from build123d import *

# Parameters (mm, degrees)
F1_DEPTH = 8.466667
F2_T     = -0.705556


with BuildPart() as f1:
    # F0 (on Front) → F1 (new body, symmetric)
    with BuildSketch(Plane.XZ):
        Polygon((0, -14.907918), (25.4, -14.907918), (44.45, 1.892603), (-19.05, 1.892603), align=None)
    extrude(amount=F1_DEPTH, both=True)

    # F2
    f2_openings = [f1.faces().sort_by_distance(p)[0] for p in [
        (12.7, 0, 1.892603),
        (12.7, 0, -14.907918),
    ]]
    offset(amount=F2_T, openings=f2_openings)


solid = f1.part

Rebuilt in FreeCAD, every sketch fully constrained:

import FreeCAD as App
import Part
import Sketcher
from FreeCAD import Vector
Q = App.Units.Quantity


def faces_at(feature, points):
    """Names of the faces that lie closest to the given points."""
    faces = feature.Shape.Faces
    near = lambda p: min(range(len(faces)), key=lambda i: faces[i].distToShape(Part.Vertex(*p))[0])
    return sorted({f"Face{near(p) + 1}" for p in points})


def add_polygon(sketch, points):
    """Adds a closed chain of lines whose ends are joined by coincident constraints."""
    first, n = sketch.GeometryCount, len(points)
    for a, b in zip(points, points[1:] + points[:1]):
        sketch.addGeometry(Part.LineSegment(App.Vector(*a, 0), App.Vector(*b, 0)), False)
    for i in range(n):
        sketch.addConstraint(Sketcher.Constraint("Coincident", first + i, 2, first + (i + 1) % n, 1))

doc = App.newDocument("Part")
body = doc.addObject("PartDesign::Body", "Body")

# Sketch on XZ plane
sketch1 = body.newObject("Sketcher::SketchObject", "Sketch")
sketch1.AttachmentSupport = (doc.getObject("XZ_Plane"), [""])
sketch1.MapMode = "FlatFace"
add_polygon(sketch1, [(0, -14.907918), (25.4, -14.907918), (44.45, 1.892603), (-19.05, 1.892603)])  # lines 0-3
sketch1.addConstraint([
    Sketcher.Constraint("Horizontal", 0),
    Sketcher.Constraint("Horizontal", 2),
    Sketcher.Constraint("PointOnObject", 3, 2, -2),
    Sketcher.Constraint("Equal", 1, 3),
    Sketcher.Constraint("DistanceX", 0, 1, 0, 2, Q("1 in")),
    Sketcher.Constraint("Distance", 1, Q("1 in")),
    Sketcher.Constraint("DistanceX", 2, 2, 2, 1, Q("2.5 in")),
    Sketcher.Constraint("DistanceY", 0, 2, -1, 1, 14.907918),
])
pad1 = body.newObject("PartDesign::Pad", "Pad")
pad1.Profile = sketch1
pad1.Length = 16.933334
pad1.Midplane = True
doc.recompute()

thickness = body.newObject("PartDesign::Thickness", "Thickness")
thickness.Base = (pad1, faces_at(pad1, [(12.7, 0, 1.893), (12.7, 0, -14.908)]))
thickness.Value = 0.705556
thickness.Reversed = True
thickness.Join = "Arc"

doc.recompute()
